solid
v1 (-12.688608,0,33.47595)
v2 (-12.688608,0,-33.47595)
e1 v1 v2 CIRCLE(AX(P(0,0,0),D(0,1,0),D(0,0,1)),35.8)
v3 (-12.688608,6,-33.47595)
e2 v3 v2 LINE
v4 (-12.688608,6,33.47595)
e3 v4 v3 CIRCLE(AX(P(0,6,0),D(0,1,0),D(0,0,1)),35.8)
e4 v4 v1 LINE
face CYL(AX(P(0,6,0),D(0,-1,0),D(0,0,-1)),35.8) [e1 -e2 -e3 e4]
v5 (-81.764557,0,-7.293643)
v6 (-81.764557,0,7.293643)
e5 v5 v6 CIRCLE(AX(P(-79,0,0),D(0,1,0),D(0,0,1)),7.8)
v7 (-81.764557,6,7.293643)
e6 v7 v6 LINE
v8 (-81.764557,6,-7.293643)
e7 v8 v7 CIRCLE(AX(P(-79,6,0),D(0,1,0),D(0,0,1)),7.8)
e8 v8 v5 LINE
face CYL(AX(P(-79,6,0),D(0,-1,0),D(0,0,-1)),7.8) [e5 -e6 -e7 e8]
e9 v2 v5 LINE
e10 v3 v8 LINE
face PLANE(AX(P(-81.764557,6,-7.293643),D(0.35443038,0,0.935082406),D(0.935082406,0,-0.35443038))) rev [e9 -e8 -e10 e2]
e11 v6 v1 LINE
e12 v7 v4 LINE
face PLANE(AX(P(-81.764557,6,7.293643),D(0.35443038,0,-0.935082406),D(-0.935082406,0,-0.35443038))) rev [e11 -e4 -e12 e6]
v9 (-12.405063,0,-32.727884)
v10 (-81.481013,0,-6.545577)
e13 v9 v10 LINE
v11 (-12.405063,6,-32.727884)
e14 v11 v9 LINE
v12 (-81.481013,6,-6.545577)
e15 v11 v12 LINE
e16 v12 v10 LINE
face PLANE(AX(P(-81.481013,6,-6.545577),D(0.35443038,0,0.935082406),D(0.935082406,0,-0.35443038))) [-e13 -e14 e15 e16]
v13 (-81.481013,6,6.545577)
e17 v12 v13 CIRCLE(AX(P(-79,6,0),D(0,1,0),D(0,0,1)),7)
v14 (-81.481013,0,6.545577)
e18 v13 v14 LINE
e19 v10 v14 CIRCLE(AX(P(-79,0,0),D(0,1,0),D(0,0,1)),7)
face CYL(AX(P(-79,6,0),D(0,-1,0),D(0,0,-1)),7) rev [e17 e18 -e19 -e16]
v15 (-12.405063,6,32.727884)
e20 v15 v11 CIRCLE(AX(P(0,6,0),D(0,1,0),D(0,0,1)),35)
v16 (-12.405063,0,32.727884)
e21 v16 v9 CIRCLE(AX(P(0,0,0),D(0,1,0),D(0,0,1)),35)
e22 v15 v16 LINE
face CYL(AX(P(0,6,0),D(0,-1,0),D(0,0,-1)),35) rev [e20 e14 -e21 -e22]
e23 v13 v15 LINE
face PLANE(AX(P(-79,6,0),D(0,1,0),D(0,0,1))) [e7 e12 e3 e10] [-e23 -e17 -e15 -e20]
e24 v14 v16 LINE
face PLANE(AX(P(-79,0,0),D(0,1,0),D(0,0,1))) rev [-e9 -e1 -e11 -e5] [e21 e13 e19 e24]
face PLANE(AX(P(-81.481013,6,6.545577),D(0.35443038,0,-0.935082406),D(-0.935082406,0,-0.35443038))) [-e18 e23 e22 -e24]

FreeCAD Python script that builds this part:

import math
import FreeCAD as App
import Part
import Sketcher
from FreeCAD import Vector
Q = App.Units.Quantity

doc = App.newDocument("Part")
params = doc.addObject("Spreadsheet::Sheet", "Params")
for row, (alias, value) in enumerate([
    ("sketch1_radius", "35 mm"),
    ("sketch1_radius2", "7 mm"),
    ("sketch1_radius3", "7.8 mm"),
    ("pad1_length", "6 mm"),
], start=1):
    params.set(f"A{row}", alias)
    params.set(f"B{row}", "=" + value)
    params.setAlias(f"B{row}", alias)

body = doc.addObject("PartDesign::Body", "Body")

sketch1 = body.newObject("Sketcher::SketchObject", "Sketch")
sketch1.AttachmentSupport = (doc.getObject("XZ_Plane"), [""])
sketch1.MapMode = "FlatFace"
sketch1.addGeometry(Part.LineSegment(Vector(-13, -33, 0), Vector(-82, -7, 0)), False)
sketch1.addGeometry(Part.ArcOfCircle(Part.Circle(Vector(-79, 0, 0), Vector(0, 0, 1), 8), math.radians(111), math.radians(249)), False)
sketch1.addGeometry(Part.LineSegment(Vector(-82, 7, 0), Vector(-13, 33, 0)), False)
sketch1.addGeometry(Part.ArcOfCircle(Part.Circle(Vector(0, 0, 0), Vector(0, 0, 1), 36), math.radians(-111), math.radians(111)), False)
sketch1.addGeometry(Part.LineSegment(Vector(-81, -7, 0), Vector(-12, -33, 0)), False)
sketch1.addGeometry(Part.ArcOfCircle(Part.Circle(Vector(0, 0, 0), Vector(0, 0, 1), 35), math.radians(-111), math.radians(111)), False)
sketch1.addGeometry(Part.LineSegment(Vector(-12, 33, 0), Vector(-81, 7, 0)), False)
sketch1.addGeometry(Part.ArcOfCircle(Part.Circle(Vector(-79, 0, 0), Vector(0, 0, 1), 7), math.radians(111), math.radians(249)), False)
sketch1.addConstraint(Sketcher.Constraint("Tangent", 0, 2, 1, 2))
sketch1.addConstraint(Sketcher.Constraint("Tangent", 1, 1, 2, 1))
sketch1.addConstraint(Sketcher.Constraint("Tangent", 2, 2, 3, 2))
sketch1.addConstraint(Sketcher.Constraint("Tangent", 3, 1, 0, 1))
sketch1.addConstraint(Sketcher.Constraint("Tangent", 4, 2, 5, 1))
sketch1.addConstraint(Sketcher.Constraint("Tangent", 5, 2, 6, 1))
sketch1.addConstraint(Sketcher.Constraint("Tangent", 6, 2, 7, 1))
sketch1.addConstraint(Sketcher.Constraint("Tangent", 7, 2, 4, 1))
sketch1.addConstraint(Sketcher.Constraint("Coincident", 3, 3, -1, 1))
sketch1.addConstraint(Sketcher.Constraint("Coincident", 5, 3, -1, 1))
sketch1.addConstraint(Sketcher.Constraint("Coincident", 7, 3, 1, 3))
sketch1.addConstraint(Sketcher.Constraint("PointOnObject", 1, 3, -1))
sketch1.addConstraint(Sketcher.Constraint("Parallel", 0, 4))
sketch1.addConstraint(Sketcher.Constraint("Radius", 5, Q("35 mm")))
sketch1.addConstraint(Sketcher.Constraint("Radius", 7, Q("7 mm")))
sketch1.addConstraint(Sketcher.Constraint("Radius", 1, Q("7.8 mm")))
sketch1.addConstraint(Sketcher.Constraint("DistanceX", 1, 3, -1, 1, Q("79 mm")))
sketch1.setExpression("Constraints[13]", "Params.sketch1_radius")
sketch1.setExpression("Constraints[14]", "Params.sketch1_radius2")
sketch1.setExpression("Constraints[15]", "Params.sketch1_radius3")
pad1 = body.newObject("PartDesign::Pad", "Pad")
pad1.Profile = sketch1
pad1.setExpression("Length", "Params.pad1_length")
pad1.Reversed = True

doc.recompute()
